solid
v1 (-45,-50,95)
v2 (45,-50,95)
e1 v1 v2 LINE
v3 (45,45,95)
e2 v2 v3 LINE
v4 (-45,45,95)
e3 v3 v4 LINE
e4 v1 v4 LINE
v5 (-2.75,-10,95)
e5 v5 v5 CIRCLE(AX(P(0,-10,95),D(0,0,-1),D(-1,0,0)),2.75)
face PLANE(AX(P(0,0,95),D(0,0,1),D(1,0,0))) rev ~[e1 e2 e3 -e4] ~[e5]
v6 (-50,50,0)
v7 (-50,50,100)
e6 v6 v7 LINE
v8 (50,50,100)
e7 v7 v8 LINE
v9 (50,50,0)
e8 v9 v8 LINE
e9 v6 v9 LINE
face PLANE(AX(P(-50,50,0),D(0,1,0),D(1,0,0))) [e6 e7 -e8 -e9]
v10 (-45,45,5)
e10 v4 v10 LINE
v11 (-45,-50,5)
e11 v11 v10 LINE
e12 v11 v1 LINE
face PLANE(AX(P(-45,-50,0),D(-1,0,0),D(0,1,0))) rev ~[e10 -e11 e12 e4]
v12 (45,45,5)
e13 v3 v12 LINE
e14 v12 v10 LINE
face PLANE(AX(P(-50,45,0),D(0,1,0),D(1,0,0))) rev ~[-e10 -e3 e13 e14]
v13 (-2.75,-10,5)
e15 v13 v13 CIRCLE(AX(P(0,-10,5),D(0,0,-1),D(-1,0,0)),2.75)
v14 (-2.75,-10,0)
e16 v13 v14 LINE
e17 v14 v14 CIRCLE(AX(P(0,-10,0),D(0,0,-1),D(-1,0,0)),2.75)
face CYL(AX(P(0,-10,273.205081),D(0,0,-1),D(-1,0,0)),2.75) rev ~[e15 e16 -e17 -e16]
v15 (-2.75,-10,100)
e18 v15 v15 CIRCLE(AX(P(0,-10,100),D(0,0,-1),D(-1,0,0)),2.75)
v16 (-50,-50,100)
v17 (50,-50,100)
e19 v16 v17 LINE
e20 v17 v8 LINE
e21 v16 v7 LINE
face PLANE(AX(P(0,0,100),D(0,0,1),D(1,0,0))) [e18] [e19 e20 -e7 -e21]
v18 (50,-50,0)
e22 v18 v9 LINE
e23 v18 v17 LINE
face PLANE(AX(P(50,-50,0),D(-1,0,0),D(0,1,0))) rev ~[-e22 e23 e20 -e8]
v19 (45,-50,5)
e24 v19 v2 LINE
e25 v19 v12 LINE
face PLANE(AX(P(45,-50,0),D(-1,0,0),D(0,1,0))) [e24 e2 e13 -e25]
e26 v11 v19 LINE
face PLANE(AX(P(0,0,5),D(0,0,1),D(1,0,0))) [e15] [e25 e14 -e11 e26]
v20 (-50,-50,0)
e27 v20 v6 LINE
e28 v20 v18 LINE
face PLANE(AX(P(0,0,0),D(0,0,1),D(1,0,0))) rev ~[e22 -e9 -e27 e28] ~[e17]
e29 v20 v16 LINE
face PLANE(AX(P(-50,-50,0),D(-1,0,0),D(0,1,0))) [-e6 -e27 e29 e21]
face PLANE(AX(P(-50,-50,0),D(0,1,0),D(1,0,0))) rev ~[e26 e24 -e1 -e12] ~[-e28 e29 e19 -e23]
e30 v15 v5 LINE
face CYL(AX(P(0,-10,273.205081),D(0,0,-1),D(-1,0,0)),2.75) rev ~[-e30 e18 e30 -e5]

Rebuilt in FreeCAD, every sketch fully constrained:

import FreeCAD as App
import Part
import Sketcher
Q = App.Units.Quantity


def faces_at(feature, points):
    """Names of the faces that lie closest to the given points."""
    faces = feature.Shape.Faces
    near = lambda p: min(range(len(faces)), key=lambda i: faces[i].distToShape(Part.Vertex(*p))[0])
    return sorted({f"Face{near(p) + 1}" for p in points})


def add_polygon(sketch, points):
    """Adds a closed chain of lines whose ends are joined by coincident constraints."""
    first, n = sketch.GeometryCount, len(points)
    for a, b in zip(points, points[1:] + points[:1]):
        sketch.addGeometry(Part.LineSegment(App.Vector(*a, 0), App.Vector(*b, 0)), False)
    for i in range(n):
        sketch.addConstraint(Sketcher.Constraint("Coincident", first + i, 2, first + (i + 1) % n, 1))

doc = App.newDocument("Part")
body = doc.addObject("PartDesign::Body", "Body")

# Sketch on XY plane
sketch1 = body.newObject("Sketcher::SketchObject", "Sketch")
sketch1.AttachmentSupport = (doc.getObject("XY_Plane"), [""])
sketch1.MapMode = "FlatFace"
add_polygon(sketch1, [(-50, 50), (-50, -50), (50, -50), (50, 50)])  # lines 0-3
sketch1.addConstraint(Sketcher.Constraint("Vertical", 0))
sketch1.addConstraint(Sketcher.Constraint("Horizontal", 1))
sketch1.addConstraint(Sketcher.Constraint("Vertical", 2))
sketch1.addConstraint(Sketcher.Constraint("Horizontal", 3))
sketch1.addConstraint(Sketcher.Constraint("Symmetric", 0, 2, 2, 2, -1, 1))
sketch1.addConstraint(Sketcher.Constraint("Equal", 3, 0))
sketch1.addConstraint(Sketcher.Constraint("DistanceX", 1, 1, 1, 2, Q("100 mm")))
pad1 = body.newObject("PartDesign::Pad", "Pad")
pad1.Profile = sketch1
pad1.Length = 100
doc.recompute()

thickness = body.newObject("PartDesign::Thickness", "Thickness")
thickness.Base = (pad1, faces_at(pad1, [(0, -50, 50)]))
thickness.Value = 5
thickness.Reversed = True
thickness.Join = "Arc"

# Sketch on XY plane
sketch2 = body.newObject("Sketcher::SketchObject", "Sketch001")
sketch2.AttachmentSupport = (doc.getObject("XY_Plane"), [""])
sketch2.MapMode = "FlatFace"
sketch2.AttachmentOffset = App.Placement(App.Vector(0, 0, 100), App.Rotation())
sketch2.addGeometry(Part.Circle(App.Vector(0, -10, 0), App.Vector(0, 0, 1), 2.8), False)
sketch2.addConstraint(Sketcher.Constraint("PointOnObject", 0, 3, -2))
sketch2.addConstraint(Sketcher.Constraint("Diameter", 0, Q("5.5 mm")))
sketch2.addConstraint(Sketcher.Constraint("DistanceY", 0, 3, -1, 1, Q("10 mm")))
doc.recompute()
hole = body.newObject("PartDesign::Hole", "Hole")
hole.Profile = sketch2
hole.ThreadType = "None"
hole.Diameter = 5.5
hole.DepthType = "ThroughAll"

doc.recompute()
